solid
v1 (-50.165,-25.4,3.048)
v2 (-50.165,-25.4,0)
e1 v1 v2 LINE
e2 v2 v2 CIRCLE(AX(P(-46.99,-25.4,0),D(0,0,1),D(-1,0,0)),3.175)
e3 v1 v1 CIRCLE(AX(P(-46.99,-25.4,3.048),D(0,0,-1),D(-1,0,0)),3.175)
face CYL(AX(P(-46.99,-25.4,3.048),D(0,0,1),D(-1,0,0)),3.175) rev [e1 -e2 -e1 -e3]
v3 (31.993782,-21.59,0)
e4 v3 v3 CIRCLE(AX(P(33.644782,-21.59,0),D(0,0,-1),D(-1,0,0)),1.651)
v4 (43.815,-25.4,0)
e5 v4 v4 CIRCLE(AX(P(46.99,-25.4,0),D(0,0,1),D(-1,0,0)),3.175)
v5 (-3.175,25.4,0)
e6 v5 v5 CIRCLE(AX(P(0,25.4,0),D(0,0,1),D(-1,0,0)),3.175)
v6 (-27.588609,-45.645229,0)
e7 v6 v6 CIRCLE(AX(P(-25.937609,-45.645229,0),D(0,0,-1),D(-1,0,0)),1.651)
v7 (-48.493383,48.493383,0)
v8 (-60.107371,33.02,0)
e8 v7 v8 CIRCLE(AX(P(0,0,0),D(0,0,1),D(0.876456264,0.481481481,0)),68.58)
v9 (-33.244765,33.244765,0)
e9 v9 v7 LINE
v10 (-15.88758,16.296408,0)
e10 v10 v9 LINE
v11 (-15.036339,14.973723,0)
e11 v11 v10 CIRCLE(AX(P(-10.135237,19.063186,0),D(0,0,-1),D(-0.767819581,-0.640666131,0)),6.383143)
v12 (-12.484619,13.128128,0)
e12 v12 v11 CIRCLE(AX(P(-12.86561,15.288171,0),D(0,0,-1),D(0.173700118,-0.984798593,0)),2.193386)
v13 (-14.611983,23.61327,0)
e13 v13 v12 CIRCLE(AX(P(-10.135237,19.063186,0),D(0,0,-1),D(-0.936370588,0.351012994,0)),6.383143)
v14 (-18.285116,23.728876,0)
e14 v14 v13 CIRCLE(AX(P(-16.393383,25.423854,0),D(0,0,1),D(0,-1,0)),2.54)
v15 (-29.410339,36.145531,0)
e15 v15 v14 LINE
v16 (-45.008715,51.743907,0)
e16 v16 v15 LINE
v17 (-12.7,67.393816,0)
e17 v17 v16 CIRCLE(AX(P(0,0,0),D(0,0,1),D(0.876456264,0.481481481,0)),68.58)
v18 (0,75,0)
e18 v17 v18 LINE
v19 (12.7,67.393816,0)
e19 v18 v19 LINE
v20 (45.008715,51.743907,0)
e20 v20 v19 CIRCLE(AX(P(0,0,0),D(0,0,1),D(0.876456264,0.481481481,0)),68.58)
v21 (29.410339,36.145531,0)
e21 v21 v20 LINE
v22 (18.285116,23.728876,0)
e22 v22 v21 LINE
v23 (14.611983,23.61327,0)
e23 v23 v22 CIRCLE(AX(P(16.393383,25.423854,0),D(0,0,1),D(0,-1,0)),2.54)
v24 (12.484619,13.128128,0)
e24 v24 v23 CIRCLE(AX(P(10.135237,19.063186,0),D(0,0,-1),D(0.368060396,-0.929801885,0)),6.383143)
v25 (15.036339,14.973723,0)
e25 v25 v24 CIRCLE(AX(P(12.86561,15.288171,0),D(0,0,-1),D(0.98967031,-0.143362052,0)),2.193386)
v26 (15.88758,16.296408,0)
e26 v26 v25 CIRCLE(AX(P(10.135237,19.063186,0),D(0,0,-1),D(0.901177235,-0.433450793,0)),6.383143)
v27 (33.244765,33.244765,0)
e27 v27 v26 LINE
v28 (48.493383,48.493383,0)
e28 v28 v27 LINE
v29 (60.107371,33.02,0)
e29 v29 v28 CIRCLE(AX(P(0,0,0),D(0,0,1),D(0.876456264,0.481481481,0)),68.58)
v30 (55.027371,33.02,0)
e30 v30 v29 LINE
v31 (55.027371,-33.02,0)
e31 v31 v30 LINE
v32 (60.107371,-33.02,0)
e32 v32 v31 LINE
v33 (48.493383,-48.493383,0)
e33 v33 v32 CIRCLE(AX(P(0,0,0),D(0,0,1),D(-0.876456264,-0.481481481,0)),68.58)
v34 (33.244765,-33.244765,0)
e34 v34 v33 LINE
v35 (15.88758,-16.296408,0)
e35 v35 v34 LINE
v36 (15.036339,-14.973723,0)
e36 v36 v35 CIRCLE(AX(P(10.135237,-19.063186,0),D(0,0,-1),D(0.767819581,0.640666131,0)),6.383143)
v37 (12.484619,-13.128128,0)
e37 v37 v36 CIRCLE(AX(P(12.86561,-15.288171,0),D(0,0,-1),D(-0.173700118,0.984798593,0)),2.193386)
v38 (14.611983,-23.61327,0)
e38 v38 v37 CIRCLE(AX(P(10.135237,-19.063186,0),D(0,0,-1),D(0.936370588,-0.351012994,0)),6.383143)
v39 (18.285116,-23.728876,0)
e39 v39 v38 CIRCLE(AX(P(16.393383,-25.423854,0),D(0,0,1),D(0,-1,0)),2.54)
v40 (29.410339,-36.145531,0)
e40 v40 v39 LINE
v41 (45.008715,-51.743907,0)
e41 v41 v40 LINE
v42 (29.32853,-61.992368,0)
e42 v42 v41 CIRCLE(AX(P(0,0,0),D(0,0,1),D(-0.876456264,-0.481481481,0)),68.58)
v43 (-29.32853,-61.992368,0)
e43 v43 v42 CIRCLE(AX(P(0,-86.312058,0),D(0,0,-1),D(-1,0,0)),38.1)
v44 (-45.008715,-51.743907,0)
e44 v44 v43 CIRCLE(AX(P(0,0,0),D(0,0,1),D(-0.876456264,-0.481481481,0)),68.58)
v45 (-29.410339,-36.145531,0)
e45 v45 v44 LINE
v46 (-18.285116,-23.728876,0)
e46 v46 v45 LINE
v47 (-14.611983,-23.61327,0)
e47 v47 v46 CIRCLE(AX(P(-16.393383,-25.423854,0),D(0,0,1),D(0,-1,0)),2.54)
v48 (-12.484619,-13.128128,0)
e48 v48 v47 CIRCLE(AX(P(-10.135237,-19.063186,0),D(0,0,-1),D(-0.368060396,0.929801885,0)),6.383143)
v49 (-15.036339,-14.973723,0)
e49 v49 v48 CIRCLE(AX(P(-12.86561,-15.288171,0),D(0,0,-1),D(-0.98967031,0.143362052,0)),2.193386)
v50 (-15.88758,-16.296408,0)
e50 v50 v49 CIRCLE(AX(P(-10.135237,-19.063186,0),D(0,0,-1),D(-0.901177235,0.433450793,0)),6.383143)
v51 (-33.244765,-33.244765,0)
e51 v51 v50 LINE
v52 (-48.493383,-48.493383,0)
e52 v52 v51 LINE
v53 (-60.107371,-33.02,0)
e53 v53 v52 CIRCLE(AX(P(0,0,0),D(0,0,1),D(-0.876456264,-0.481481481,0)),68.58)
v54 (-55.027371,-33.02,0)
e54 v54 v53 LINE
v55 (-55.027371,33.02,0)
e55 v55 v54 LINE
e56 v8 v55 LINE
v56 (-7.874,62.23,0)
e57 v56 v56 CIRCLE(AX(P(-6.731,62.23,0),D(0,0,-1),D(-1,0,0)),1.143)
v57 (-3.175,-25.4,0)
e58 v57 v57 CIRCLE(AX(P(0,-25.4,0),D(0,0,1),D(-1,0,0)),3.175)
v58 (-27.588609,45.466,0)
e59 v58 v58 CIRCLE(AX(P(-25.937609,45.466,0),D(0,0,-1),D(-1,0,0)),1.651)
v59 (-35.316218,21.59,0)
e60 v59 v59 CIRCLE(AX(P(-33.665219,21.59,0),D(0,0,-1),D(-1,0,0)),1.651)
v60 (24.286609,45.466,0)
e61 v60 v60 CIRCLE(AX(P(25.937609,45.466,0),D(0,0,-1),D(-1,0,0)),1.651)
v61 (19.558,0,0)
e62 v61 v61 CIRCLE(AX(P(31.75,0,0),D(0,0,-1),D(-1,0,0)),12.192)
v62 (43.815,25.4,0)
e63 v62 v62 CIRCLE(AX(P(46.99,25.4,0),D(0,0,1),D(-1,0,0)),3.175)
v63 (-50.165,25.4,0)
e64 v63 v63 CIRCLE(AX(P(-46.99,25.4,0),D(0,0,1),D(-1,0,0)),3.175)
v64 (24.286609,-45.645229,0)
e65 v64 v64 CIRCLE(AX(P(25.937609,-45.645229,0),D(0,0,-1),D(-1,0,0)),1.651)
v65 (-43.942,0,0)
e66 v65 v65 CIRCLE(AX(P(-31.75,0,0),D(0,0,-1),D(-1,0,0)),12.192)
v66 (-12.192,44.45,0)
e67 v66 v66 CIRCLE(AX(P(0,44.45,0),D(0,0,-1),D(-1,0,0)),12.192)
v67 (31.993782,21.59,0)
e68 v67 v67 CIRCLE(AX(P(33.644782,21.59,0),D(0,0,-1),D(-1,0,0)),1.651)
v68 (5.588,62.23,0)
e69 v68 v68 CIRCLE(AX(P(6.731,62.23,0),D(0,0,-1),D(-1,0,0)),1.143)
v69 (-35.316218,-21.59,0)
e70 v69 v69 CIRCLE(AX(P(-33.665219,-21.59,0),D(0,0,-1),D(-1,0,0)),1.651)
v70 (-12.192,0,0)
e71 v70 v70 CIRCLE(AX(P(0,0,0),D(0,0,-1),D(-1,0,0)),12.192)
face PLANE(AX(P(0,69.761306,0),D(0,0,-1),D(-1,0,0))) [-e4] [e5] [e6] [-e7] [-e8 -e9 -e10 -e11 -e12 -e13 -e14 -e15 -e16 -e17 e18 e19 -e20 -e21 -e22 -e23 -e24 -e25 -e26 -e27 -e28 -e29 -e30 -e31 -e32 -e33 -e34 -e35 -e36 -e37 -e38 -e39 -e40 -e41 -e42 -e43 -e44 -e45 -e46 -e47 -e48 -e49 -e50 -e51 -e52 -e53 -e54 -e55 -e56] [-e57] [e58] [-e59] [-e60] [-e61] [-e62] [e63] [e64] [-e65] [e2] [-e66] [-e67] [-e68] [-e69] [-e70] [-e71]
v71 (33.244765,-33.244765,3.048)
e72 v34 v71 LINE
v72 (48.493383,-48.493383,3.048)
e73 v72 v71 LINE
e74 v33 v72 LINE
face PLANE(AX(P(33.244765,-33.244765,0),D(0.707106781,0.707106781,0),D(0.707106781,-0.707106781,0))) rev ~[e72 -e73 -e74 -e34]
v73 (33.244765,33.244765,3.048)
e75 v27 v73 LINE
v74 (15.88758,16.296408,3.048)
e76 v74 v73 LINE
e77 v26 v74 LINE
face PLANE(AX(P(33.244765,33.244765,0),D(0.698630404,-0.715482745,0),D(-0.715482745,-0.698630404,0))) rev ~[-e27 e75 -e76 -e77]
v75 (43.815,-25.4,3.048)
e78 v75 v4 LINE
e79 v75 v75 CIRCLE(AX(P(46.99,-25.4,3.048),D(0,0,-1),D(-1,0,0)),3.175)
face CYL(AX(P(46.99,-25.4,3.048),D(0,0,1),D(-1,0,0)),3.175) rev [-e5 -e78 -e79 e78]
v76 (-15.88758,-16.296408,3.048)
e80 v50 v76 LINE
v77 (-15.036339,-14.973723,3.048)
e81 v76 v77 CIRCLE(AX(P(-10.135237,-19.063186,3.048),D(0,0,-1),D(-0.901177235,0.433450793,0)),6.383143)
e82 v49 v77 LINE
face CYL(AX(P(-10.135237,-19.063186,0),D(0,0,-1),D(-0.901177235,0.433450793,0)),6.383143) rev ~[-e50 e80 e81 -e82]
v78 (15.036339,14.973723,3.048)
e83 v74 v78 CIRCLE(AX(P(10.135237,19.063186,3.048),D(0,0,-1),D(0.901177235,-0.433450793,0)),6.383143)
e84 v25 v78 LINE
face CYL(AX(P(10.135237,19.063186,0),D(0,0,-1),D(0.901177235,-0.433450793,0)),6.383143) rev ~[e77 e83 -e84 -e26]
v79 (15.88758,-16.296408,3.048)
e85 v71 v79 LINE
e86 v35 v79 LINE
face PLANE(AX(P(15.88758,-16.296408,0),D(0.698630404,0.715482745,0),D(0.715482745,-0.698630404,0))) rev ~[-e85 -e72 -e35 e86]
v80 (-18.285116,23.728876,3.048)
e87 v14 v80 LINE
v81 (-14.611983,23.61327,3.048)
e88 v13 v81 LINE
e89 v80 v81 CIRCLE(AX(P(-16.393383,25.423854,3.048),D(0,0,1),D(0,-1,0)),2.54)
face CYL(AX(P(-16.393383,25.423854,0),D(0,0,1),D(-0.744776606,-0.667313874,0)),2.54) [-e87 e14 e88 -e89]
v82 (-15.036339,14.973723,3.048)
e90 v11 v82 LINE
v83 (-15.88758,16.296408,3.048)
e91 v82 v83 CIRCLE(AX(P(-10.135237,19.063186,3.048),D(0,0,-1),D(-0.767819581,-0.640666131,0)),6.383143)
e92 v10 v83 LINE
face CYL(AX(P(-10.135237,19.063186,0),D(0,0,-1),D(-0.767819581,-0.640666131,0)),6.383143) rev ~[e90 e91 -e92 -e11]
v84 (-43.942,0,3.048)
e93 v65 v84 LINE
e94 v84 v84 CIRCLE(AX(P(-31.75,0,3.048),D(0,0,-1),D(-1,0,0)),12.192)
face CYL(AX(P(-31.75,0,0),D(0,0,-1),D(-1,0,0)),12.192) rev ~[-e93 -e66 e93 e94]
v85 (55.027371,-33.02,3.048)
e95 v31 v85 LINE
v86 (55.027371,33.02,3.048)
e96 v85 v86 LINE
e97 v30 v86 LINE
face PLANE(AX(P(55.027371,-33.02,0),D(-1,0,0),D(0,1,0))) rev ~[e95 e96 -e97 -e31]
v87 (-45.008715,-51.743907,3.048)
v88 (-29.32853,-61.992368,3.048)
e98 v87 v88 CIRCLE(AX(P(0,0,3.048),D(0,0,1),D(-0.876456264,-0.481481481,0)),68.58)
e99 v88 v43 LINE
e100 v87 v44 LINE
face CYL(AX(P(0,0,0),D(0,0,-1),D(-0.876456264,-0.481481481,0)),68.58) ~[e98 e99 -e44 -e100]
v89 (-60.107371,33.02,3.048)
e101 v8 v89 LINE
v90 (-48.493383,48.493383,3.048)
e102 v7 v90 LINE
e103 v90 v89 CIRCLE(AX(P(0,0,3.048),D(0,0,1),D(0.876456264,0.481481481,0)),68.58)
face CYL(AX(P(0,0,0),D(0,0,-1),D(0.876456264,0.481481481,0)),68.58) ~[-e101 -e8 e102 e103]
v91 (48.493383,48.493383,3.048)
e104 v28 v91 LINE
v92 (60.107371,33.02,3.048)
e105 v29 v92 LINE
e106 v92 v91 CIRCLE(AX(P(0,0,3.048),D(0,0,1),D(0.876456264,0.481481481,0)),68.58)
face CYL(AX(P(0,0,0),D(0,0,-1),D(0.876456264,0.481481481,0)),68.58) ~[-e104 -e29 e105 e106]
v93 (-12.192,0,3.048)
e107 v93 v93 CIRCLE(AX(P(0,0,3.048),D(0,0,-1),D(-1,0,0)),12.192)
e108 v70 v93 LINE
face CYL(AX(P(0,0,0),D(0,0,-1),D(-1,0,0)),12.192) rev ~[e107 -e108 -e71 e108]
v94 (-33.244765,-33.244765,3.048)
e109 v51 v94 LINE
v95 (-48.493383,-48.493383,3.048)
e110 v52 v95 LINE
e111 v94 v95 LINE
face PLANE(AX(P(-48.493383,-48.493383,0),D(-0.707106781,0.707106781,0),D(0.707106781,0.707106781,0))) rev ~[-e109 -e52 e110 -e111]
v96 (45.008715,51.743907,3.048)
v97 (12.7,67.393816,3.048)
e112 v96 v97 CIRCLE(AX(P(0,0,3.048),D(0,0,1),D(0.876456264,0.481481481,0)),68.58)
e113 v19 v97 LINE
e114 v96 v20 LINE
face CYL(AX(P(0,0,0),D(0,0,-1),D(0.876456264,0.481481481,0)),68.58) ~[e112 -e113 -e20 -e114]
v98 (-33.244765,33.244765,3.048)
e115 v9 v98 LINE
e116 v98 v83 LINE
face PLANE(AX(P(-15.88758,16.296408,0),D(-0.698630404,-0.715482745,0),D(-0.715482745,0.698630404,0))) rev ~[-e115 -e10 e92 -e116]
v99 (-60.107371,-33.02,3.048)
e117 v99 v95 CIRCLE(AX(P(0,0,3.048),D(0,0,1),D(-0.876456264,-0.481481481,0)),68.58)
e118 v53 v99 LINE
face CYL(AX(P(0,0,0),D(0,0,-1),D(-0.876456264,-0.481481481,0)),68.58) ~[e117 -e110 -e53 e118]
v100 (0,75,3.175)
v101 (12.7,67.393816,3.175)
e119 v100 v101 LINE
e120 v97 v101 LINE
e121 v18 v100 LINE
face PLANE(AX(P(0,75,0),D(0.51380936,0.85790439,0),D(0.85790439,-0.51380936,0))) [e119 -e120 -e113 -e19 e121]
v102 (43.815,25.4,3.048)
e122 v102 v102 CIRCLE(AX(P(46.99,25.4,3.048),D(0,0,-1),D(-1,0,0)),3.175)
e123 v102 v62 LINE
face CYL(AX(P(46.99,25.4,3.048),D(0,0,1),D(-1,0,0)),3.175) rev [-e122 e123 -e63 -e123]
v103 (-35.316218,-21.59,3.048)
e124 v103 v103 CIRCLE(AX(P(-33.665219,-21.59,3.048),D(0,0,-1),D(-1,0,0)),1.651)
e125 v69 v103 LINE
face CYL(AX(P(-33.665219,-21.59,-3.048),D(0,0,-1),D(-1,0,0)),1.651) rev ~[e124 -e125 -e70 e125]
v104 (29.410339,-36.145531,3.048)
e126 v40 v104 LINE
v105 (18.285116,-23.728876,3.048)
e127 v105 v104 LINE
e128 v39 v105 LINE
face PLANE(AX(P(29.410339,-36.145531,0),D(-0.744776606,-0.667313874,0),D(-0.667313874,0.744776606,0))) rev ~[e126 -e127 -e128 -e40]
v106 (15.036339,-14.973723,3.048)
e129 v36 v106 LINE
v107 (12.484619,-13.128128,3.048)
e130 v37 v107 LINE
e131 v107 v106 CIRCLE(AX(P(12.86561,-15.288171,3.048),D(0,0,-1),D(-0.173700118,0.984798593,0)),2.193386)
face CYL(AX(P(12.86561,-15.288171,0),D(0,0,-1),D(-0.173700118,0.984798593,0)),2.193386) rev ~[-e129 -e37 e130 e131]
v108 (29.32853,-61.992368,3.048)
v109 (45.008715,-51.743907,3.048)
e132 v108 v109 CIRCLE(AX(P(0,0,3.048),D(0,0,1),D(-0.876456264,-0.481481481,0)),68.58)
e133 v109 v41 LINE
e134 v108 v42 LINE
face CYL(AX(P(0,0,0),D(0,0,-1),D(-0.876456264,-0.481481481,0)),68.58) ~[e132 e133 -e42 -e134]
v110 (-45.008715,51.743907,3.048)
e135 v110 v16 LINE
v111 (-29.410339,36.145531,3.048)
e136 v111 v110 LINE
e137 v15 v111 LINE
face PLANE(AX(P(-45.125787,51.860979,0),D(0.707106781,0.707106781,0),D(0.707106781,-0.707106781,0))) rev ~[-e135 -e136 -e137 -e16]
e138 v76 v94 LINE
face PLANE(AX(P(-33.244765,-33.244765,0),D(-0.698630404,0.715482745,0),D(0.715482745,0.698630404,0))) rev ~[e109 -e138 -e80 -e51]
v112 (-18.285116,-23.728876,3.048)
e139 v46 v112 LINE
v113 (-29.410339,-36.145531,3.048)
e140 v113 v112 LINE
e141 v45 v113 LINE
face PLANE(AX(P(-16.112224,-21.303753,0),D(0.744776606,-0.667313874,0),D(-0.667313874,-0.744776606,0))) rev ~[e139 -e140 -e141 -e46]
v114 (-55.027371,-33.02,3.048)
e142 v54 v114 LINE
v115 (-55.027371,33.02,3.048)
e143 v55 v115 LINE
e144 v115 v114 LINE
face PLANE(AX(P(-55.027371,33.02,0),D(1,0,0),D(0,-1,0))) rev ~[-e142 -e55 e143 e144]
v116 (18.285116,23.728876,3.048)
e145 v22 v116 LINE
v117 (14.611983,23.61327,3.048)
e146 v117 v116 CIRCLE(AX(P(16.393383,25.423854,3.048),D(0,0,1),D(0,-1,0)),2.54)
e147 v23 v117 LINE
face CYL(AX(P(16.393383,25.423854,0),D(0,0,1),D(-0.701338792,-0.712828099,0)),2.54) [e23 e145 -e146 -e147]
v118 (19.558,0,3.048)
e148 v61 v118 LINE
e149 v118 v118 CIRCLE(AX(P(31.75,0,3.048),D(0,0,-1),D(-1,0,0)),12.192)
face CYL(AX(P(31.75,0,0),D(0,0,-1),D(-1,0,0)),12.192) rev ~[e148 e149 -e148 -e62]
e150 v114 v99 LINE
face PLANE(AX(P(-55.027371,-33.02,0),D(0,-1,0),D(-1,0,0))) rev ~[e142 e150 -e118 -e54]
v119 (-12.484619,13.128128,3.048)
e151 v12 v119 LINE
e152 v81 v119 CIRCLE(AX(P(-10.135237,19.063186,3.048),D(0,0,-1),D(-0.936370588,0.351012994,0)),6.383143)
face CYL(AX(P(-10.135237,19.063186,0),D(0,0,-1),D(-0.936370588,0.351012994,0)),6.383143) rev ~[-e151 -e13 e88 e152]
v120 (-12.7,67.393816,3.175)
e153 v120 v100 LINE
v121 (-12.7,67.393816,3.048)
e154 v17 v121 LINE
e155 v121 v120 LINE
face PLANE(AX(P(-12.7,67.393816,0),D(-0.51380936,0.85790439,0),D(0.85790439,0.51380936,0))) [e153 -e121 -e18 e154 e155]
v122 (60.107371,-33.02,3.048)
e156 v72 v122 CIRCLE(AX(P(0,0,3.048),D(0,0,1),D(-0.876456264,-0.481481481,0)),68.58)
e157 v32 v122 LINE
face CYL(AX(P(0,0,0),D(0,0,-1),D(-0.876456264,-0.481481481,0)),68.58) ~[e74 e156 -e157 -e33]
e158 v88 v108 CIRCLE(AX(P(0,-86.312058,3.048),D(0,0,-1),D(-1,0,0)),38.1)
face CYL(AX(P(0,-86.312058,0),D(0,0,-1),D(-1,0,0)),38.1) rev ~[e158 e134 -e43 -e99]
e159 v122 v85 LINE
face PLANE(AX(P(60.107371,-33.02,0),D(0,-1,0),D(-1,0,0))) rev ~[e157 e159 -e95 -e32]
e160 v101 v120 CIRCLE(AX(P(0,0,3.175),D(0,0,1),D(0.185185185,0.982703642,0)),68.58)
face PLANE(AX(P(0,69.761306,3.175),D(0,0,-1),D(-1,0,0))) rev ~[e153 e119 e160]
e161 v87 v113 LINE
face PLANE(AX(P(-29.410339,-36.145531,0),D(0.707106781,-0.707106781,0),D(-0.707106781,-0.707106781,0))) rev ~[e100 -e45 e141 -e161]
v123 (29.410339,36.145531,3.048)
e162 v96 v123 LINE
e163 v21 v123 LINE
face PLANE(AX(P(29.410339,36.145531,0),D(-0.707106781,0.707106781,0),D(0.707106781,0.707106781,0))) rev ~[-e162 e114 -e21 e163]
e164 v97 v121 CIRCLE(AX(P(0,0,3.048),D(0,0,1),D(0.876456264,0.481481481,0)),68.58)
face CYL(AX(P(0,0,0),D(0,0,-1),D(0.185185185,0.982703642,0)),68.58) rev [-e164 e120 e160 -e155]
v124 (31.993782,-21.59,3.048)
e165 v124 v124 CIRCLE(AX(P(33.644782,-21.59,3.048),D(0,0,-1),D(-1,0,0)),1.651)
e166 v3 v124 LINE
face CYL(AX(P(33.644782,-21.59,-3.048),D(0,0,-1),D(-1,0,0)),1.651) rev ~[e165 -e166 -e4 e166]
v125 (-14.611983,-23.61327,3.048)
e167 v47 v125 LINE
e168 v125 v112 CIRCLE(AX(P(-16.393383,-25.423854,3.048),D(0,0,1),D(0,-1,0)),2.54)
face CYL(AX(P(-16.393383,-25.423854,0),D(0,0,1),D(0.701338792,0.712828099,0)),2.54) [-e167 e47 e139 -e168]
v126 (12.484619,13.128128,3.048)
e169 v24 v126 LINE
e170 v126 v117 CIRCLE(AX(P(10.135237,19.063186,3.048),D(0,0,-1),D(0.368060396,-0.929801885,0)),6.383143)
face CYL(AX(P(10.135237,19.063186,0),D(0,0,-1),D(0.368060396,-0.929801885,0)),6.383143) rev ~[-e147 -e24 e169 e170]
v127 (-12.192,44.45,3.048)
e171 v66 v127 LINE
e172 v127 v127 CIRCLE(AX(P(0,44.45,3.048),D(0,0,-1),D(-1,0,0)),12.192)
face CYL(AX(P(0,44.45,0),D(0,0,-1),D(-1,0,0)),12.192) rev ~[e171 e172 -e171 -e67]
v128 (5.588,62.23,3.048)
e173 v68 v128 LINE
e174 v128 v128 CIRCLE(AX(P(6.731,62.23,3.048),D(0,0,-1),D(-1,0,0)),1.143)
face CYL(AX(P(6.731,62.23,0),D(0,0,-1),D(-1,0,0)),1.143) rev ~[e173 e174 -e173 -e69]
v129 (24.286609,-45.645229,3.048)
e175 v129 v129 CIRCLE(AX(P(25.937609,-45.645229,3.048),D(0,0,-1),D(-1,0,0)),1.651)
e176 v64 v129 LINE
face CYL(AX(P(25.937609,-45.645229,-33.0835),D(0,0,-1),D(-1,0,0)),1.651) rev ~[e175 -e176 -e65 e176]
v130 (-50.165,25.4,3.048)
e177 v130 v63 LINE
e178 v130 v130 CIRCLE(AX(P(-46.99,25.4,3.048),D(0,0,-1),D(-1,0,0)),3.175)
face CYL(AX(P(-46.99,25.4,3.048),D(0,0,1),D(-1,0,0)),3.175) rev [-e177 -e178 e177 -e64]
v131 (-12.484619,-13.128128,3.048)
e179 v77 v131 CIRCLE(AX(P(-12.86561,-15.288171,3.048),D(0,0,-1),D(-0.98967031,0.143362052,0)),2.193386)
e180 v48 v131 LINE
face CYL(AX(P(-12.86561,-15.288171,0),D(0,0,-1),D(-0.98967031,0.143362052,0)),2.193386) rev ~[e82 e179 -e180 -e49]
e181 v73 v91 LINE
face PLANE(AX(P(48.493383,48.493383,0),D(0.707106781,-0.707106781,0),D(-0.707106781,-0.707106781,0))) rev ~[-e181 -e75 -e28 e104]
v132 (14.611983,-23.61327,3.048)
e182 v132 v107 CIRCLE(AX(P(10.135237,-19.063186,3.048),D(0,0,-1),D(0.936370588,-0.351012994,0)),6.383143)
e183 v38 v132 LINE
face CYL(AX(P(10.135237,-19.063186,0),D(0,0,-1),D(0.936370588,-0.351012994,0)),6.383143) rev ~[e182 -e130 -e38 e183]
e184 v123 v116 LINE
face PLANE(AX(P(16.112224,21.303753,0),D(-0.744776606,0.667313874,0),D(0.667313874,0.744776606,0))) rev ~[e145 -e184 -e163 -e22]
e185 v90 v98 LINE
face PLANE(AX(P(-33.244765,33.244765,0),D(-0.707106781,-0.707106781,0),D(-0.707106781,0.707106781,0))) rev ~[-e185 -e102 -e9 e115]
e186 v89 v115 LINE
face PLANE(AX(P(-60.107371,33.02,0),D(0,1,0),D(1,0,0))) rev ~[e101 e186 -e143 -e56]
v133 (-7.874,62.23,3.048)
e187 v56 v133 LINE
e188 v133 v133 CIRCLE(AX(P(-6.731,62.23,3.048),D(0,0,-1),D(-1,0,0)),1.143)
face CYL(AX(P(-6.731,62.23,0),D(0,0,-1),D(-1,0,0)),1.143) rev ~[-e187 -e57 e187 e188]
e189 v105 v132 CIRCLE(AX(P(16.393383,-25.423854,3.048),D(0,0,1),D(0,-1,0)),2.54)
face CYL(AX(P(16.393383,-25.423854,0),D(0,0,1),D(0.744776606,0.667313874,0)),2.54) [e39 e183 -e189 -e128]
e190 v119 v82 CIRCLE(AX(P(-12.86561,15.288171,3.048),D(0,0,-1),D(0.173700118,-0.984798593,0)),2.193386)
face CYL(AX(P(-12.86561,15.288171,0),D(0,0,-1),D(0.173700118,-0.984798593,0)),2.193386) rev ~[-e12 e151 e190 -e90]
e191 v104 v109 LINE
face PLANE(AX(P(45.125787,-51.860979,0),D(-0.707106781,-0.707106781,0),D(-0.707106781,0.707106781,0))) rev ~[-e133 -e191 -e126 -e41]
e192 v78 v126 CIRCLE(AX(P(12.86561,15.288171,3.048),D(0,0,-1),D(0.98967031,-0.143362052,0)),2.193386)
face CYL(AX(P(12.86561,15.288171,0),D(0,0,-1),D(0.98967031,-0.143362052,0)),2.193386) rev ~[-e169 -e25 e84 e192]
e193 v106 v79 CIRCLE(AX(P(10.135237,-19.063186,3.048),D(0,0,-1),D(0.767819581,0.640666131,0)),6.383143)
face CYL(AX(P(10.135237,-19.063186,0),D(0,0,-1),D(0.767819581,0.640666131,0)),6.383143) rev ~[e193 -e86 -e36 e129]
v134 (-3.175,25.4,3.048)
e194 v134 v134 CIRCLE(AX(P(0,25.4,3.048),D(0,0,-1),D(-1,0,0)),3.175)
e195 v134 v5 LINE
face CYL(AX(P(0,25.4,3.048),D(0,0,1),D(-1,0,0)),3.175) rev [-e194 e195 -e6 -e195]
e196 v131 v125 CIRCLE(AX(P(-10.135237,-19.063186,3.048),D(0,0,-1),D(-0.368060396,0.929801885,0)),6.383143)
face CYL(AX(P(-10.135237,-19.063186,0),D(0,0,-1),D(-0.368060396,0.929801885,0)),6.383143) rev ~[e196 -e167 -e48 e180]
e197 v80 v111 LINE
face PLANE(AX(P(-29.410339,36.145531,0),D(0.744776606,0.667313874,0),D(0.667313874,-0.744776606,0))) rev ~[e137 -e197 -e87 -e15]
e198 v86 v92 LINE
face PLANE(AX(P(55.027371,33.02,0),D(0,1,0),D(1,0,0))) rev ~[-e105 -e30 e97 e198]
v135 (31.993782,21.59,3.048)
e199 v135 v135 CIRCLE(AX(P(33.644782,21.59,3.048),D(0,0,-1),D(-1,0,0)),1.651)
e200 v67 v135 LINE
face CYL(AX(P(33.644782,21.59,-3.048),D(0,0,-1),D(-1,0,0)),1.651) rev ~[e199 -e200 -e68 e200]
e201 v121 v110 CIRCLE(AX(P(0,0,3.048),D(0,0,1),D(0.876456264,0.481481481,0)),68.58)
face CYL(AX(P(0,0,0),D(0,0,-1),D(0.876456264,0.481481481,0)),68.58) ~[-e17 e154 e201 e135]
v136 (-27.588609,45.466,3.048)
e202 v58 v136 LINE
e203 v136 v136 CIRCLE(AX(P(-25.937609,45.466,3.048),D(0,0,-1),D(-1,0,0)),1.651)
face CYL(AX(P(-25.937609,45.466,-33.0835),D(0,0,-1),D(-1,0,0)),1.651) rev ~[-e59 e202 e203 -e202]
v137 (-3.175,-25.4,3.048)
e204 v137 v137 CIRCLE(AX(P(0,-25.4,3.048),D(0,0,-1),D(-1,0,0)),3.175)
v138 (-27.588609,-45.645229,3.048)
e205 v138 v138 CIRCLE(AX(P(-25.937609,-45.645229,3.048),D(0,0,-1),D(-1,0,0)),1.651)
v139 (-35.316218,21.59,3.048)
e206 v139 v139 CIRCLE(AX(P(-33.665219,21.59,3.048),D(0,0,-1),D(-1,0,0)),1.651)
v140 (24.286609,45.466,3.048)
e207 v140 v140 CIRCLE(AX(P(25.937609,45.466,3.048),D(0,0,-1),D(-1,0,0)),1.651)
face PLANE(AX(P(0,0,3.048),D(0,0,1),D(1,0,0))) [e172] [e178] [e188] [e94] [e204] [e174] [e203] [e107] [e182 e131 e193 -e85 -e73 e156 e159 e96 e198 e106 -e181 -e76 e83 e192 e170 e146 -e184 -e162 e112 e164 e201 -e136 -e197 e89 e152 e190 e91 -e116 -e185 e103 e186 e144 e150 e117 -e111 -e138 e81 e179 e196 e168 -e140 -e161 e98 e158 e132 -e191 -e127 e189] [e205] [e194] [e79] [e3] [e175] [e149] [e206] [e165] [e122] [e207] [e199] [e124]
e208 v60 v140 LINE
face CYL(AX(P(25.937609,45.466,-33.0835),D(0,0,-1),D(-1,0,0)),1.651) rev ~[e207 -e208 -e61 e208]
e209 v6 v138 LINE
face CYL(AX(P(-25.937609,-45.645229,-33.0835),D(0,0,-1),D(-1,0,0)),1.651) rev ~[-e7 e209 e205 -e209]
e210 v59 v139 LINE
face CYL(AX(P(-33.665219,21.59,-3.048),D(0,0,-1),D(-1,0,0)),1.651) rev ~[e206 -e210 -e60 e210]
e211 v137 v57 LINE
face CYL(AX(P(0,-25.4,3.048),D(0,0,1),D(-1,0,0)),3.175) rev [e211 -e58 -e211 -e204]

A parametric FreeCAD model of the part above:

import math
import FreeCAD as App
import Part
import Sketcher
Q = App.Units.Quantity


def edges_at(feature, points):
    """Names of the edges that pass closest to the given points."""
    edges = feature.Shape.Edges
    near = lambda p: min(range(len(edges)), key=lambda i: edges[i].distToShape(Part.Vertex(*p))[0])
    return sorted({f"Edge{near(p) + 1}" for p in points})

doc = App.newDocument("Part")
body = doc.addObject("PartDesign::Body", "Body")

# Sketch on XY plane
sketch1 = body.newObject("Sketcher::SketchObject", "Sketch")
sketch1.AttachmentSupport = (doc.getObject("XY_Plane"), [""])
sketch1.MapMode = "FlatFace"
sketch1.addGeometry([
    Part.LineSegment(App.Vector(-60.107371, 33.02, 0), App.Vector(-55.027371, 33.02, 0)),  # 0
    Part.LineSegment(App.Vector(-55.027371, 33.02, 0), App.Vector(-55.027371, -33.02, 0)),  # 1
    Part.LineSegment(App.Vector(-55.027371, -33.02, 0), App.Vector(-60.107371, -33.02, 0)),  # 2
    Part.ArcOfCircle(Part.Circle(App.Vector(0, 0, 0), App.Vector(0, 0, 1), 68.58), math.radians(-151.217795), math.radians(-28.782205)),  # 3
    Part.LineSegment(App.Vector(60.107371, -33.02, 0), App.Vector(55.027371, -33.02, 0)),  # 4
    Part.LineSegment(App.Vector(55.027371, -33.02, 0), App.Vector(55.027371, 33.02, 0)),  # 5
    Part.LineSegment(App.Vector(55.027371, 33.02, 0), App.Vector(60.107371, 33.02, 0)),  # 6
    Part.ArcOfCircle(Part.Circle(App.Vector(0, 0, 0), App.Vector(0, 0, 1), 68.58), math.radians(28.782205), math.radians(151.217795)),  # 7
], False)
sketch1.addConstraint([
    Sketcher.Constraint("Coincident", 0, 2, 1, 1),
    Sketcher.Constraint("Coincident", 1, 2, 2, 1),
    Sketcher.Constraint("Coincident", 2, 2, 3, 1),
    Sketcher.Constraint("Coincident", 3, 2, 4, 1),
    Sketcher.Constraint("Coincident", 4, 2, 5, 1),
    Sketcher.Constraint("Coincident", 5, 2, 6, 1),
    Sketcher.Constraint("Coincident", 6, 2, 7, 1),
    Sketcher.Constraint("Coincident", 7, 2, 0, 1),
    Sketcher.Constraint("Horizontal", 0),
    Sketcher.Constraint("Vertical", 1),
    Sketcher.Constraint("Horizontal", 2),
    Sketcher.Constraint("Horizontal", 4),
    Sketcher.Constraint("Vertical", 5),
    Sketcher.Constraint("Horizontal", 6),
    Sketcher.Constraint("Coincident", 3, 3, -1, 1),
    Sketcher.Constraint("Coincident", 7, 3, -1, 1),
    Sketcher.Constraint("Equal", 3, 7),
    Sketcher.Constraint("Symmetric", 0, 2, 4, 2, -1, 1),
    Sketcher.Constraint("Horizontal", 2, 2, 3, 2),
    Sketcher.Constraint("Horizontal", 0, 2, 5, 2),
    Sketcher.Constraint("Radius", 3, Q("2.7 in")),
    Sketcher.Constraint("DistanceX", 0, 1, 0, 2, Q("0.2 in")),
    Sketcher.Constraint("DistanceY", 1, 2, 1, 1, Q("2.6 in")),
])
pad1 = body.newObject("PartDesign::Pad", "Pad")
pad1.Profile = sketch1
pad1.Length = Q("0.12 in")

# Sketch on XY plane
sketch2 = body.newObject("Sketcher::SketchObject", "Sketch001")
sketch2.AttachmentSupport = (doc.getObject("XY_Plane"), [""])
sketch2.MapMode = "FlatFace"
sketch2.addGeometry(Part.Circle(App.Vector(0, -86.312058, 0), App.Vector(0, 0, 1), 38.1), False)
sketch2.addConstraint([
    Sketcher.Constraint("PointOnObject", 0, 3, -2),
    Sketcher.Constraint("Diameter", 0, Q("3 in")),
    Sketcher.Constraint("DistanceY", 0, 3, -1, 1, 86.312058),
])
pocket1 = body.newObject("PartDesign::Pocket", "Pocket")
pocket1.Profile = sketch2
pocket1.Type = "ThroughAll"
pocket1.Reversed = True

# Sketch on XY plane
sketch3 = body.newObject("Sketcher::SketchObject", "Sketch002")
sketch3.AttachmentSupport = (doc.getObject("XY_Plane"), [""])
sketch3.MapMode = "FlatFace"
sketch3.addGeometry([
    Part.LineSegment(App.Vector(-12.7, 67.393816, 0), App.Vector(0, 75, 0)),
    Part.LineSegment(App.Vector(0, 75, 0), App.Vector(12.7, 67.393816, 0)),
    Part.ArcOfCircle(Part.Circle(App.Vector(0, 0, 0), App.Vector(0, 0, 1), 68.58), math.radians(79.328071), math.radians(100.671929)),
], False)
sketch3.addConstraint([
    Sketcher.Constraint("Coincident", 0, 2, 1, 1),
    Sketcher.Constraint("Coincident", 1, 2, 2, 1),
    Sketcher.Constraint("Coincident", 2, 2, 0, 1),
    Sketcher.Constraint("Coincident", 2, 3, -1, 1),
    Sketcher.Constraint("PointOnObject", 0, 2, -2),
    Sketcher.Constraint("Horizontal", 1, 2, 2, 2),
    Sketcher.Constraint("Radius", 2, Q("2.7 in")),
    Sketcher.Constraint("DistanceX", 2, 2, 1, 2, Q("1 in")),
    Sketcher.Constraint("DistanceY", -1, 1, 0, 2, 75.0),
])
pad2 = body.newObject("PartDesign::Pad", "Pad001")
pad2.Profile = sketch3
pad2.Length = Q("0.125 in")

# Sketch on XY plane
sketch4 = body.newObject("Sketcher::SketchObject", "Sketch003")
sketch4.AttachmentSupport = (doc.getObject("XY_Plane"), [""])
sketch4.MapMode = "FlatFace"
sketch4.addGeometry([
    Part.Circle(App.Vector(-6.731, 62.23, 0), App.Vector(0, 0, 1), 1.143),
    Part.Circle(App.Vector(6.731, 62.23, 0), App.Vector(0, 0, 1), 1.143),
], False)
sketch4.addConstraint([
    Sketcher.Constraint("Equal", 0, 1),
    Sketcher.Constraint("Symmetric", 0, 3, 1, 3, -2),
    Sketcher.Constraint("Diameter", 0, Q("0.09 in")),
    Sketcher.Constraint("DistanceY", -1, 1, 0, 3, Q("2.45 in")),
    Sketcher.Constraint("DistanceX", 0, 3, 1, 3, Q("0.53 in")),
])
pocket2 = body.newObject("PartDesign::Pocket", "Pocket001")
pocket2.Profile = sketch4
pocket2.Type = "ThroughAll"
pocket2.Reversed = True

# Sketch on XY plane
sketch5 = body.newObject("Sketcher::SketchObject", "Sketch004")
sketch5.AttachmentSupport = (doc.getObject("XY_Plane"), [""])
sketch5.MapMode = "FlatFace"
sketch5.AttachmentOffset = App.Placement(App.Vector(0, 0, -0.12 * 25.4), App.Rotation())
sketch5.addGeometry([
    Part.Circle(App.Vector(-33.665219, 21.59, 0), App.Vector(0, 0, 1), 1.651),
    Part.Circle(App.Vector(-33.665219, -21.59, 0), App.Vector(0, 0, 1), 1.651),
    Part.Circle(App.Vector(33.644782, -21.59, 0), App.Vector(0, 0, 1), 1.651),
    Part.Circle(App.Vector(33.644782, 21.59, 0), App.Vector(0, 0, 1), 1.651),
], False)
sketch5.addConstraint([
    Sketcher.Constraint("Equal", 0, 1),
    Sketcher.Constraint("Equal", 1, 2),
    Sketcher.Constraint("Equal", 2, 3),
    Sketcher.Constraint("Symmetric", 0, 3, 1, 3, -1),
    Sketcher.Constraint("Symmetric", 2, 3, 3, 3, -1),
    Sketcher.Constraint("Horizontal", 1, 3, 2, 3),
    Sketcher.Constraint("Diameter", 0, Q("0.13 in")),
    Sketcher.Constraint("DistanceY", 1, 3, 0, 3, Q("1.7 in")),
    Sketcher.Constraint("DistanceX", 1, 3, 2, 3, Q("2.65 in")),
    Sketcher.Constraint("DistanceX", 0, 3, -1, 1, 33.665219),
])
pocket3 = body.newObject("PartDesign::Pocket", "Pocket002")
pocket3.Profile = sketch5
pocket3.Length = Q("2.98 in")
pocket3.Reversed = True

# Sketch on XY plane
sketch6 = body.newObject("Sketcher::SketchObject", "Sketch005")
sketch6.AttachmentSupport = (doc.getObject("XY_Plane"), [""])
sketch6.MapMode = "FlatFace"
sketch6.AttachmentOffset = App.Placement(App.Vector(0, 0, -1.3025 * 25.4), App.Rotation())
sketch6.addGeometry([
    Part.Circle(App.Vector(25.937609, -45.645229, 0), App.Vector(0, 0, 1), 1.651),
    Part.Circle(App.Vector(-25.937609, -45.645229, 0), App.Vector(0, 0, 1), 1.651),
    Part.Circle(App.Vector(25.937609, 45.466, 0), App.Vector(0, 0, 1), 1.651),
    Part.Circle(App.Vector(-25.937609, 45.466, 0), App.Vector(0, 0, 1), 1.651),
], False)
sketch6.addConstraint([
    Sketcher.Constraint("Equal", 0, 1),
    Sketcher.Constraint("Equal", 1, 2),
    Sketcher.Constraint("Equal", 2, 3),
    Sketcher.Constraint("Symmetric", 0, 3, 1, 3, -2),
    Sketcher.Constraint("Symmetric", 2, 3, 3, 3, -2),
    Sketcher.Constraint("Vertical", 0, 3, 2, 3),
    Sketcher.Constraint("Diameter", 0, Q("0.13 in")),
    Sketcher.Constraint("DistanceY", -1, 1, 2, 3, Q("1.79 in")),
    Sketcher.Constraint("DistanceX", -1, 1, 0, 3, 25.937609),
    Sketcher.Constraint("DistanceY", 0, 3, -1, 1, 45.645229),
])
pocket4 = body.newObject("PartDesign::Pocket", "Pocket003")
pocket4.Profile = sketch6
pocket4.Length = Q("3.85 in")
pocket4.Reversed = True

# Sketch on XY plane
sketch7 = body.newObject("Sketcher::SketchObject", "Sketch006")
sketch7.AttachmentSupport = (doc.getObject("XY_Plane"), [""])
sketch7.MapMode = "FlatFace"
sketch7.addGeometry([
    Part.Circle(App.Vector(-31.75, 0, 0), App.Vector(0, 0, 1), 12.192),
    Part.Circle(App.Vector(31.75, 0, 0), App.Vector(0, 0, 1), 12.192),
], False)
sketch7.addConstraint([
    Sketcher.Constraint("Equal", 0, 1),
    Sketcher.Constraint("Symmetric", 0, 3, 1, 3, -1, 1),
    Sketcher.Constraint("PointOnObject", 0, 3, -1),
    Sketcher.Constraint("Diameter", 0, Q("0.96 in")),
    Sketcher.Constraint("DistanceX", 0, 3, 1, 3, Q("2.5 in")),
])
pocket5 = body.newObject("PartDesign::Pocket", "Pocket004")
pocket5.Profile = sketch7
pocket5.Length = Q("1.4 in")
pocket5.Reversed = True

# Sketch on XY plane
sketch8 = body.newObject("Sketcher::SketchObject", "Sketch007")
sketch8.AttachmentSupport = (doc.getObject("XY_Plane"), [""])
sketch8.MapMode = "FlatFace"
sketch8.AttachmentOffset = App.Placement(App.Vector(0, 0, 0.12 * 25.4), App.Rotation())
sketch8.addGeometry([
    Part.Circle(App.Vector(46.99, 25.4, 0), App.Vector(0, 0, 1), 3.175),  # 0
    Part.Circle(App.Vector(-46.99, 25.4, 0), App.Vector(0, 0, 1), 3.175),  # 1
    Part.Circle(App.Vector(0, 25.4, 0), App.Vector(0, 0, 1), 3.175),  # 2
    Part.Circle(App.Vector(-46.99, -25.4, 0), App.Vector(0, 0, 1), 3.175),  # 3
    Part.Circle(App.Vector(0, -25.4, 0), App.Vector(0, 0, 1), 3.175),  # 4
    Part.Circle(App.Vector(46.99, -25.4, 0), App.Vector(0, 0, 1), 3.175),  # 5
], False)
sketch8.addConstraint([
    Sketcher.Constraint("Equal", 0, 1),
    Sketcher.Constraint("Equal", 1, 2),
    Sketcher.Constraint("Equal", 2, 3),
    Sketcher.Constraint("Equal", 3, 4),
    Sketcher.Constraint("Equal", 4, 5),
    Sketcher.Constraint("Symmetric", 0, 3, 3, 3, -1, 1),
    Sketcher.Constraint("Symmetric", 2, 3, 4, 3, -1, 1),
    Sketcher.Constraint("Symmetric", 1, 3, 5, 3, -1, 1),
    Sketcher.Constraint("Symmetric", 0, 3, 1, 3, -2),
    Sketcher.Constraint("PointOnObject", 2, 3, -2),
    Sketcher.Constraint("Horizontal", 1, 3, 2, 3),
    Sketcher.Constraint("Diameter", 0, Q("0.25 in")),
    Sketcher.Constraint("DistanceY", -1, 1, 0, 3, Q("1 in")),
    Sketcher.Constraint("DistanceX", 1, 3, 0, 3, Q("3.7 in")),
])
pocket6 = body.newObject("PartDesign::Pocket", "Pocket005")
pocket6.Profile = sketch8
pocket6.Type = "ThroughAll"
pocket6.Midplane = True

# Sketch on XY plane
sketch9 = body.newObject("Sketcher::SketchObject", "Sketch008")
sketch9.AttachmentSupport = (doc.getObject("XY_Plane"), [""])
sketch9.MapMode = "FlatFace"
sketch9.addGeometry([
    Part.LineSegment(App.Vector(-45.125787, -51.860979, 0), App.Vector(-48.493383, -48.493383, 0)),  # 0
    Part.LineSegment(App.Vector(-48.493383, -48.493383, 0), App.Vector(-33.244765, -33.244765, 0)),  # 1
    Part.LineSegment(App.Vector(-33.244765, -33.244765, 0), App.Vector(-15.88758, -16.296408, 0)),  # 2
    Part.ArcOfCircle(Part.Circle(App.Vector(-10.135237, -19.063186, 0), App.Vector(0, 0, 1), 6.383143), math.radians(140.158491), math.radians(154.313244)),  # 3
    Part.ArcOfCircle(Part.Circle(App.Vector(-12.86561, -15.288171, 0), App.Vector(0, 0, 1), 2.193386), math.radians(79.996978), math.radians(171.757559)),  # 4
    Part.ArcOfCircle(Part.Circle(App.Vector(-10.135237, -19.063186, 0), App.Vector(0, 0, 1), 6.383143), math.radians(-159.450713), math.radians(111.596047)),  # 5
    Part.LineSegment(App.Vector(-16.112224, -21.303753, 0), App.Vector(-29.410339, -36.145531, 0)),  # 6
    Part.LineSegment(App.Vector(-29.410339, -36.145531, 0), App.Vector(-45.125787, -51.860979, 0)),  # 7
    Part.ArcOfCircle(Part.Circle(App.Vector(-10.135237, 19.063186, 0), App.Vector(0, 0, 1), 6.383143), math.radians(-154.313244), math.radians(-140.158491)),  # 8
    Part.LineSegment(App.Vector(-15.88758, 16.296408, 0), App.Vector(-33.244765, 33.244765, 0)),  # 9
    Part.LineSegment(App.Vector(-33.244765, 33.244765, 0), App.Vector(-48.493383, 48.493383, 0)),  # 10
    Part.LineSegment(App.Vector(-48.493383, 48.493383, 0), App.Vector(-45.125787, 51.860979, 0)),  # 11
    Part.LineSegment(App.Vector(-45.125787, 51.860979, 0), App.Vector(-29.410339, 36.145531, 0)),  # 12
    Part.LineSegment(App.Vector(-29.410339, 36.145531, 0), App.Vector(-16.112224, 21.303753, 0)),  # 13
    Part.ArcOfCircle(Part.Circle(App.Vector(-10.135237, 19.063186, 0), App.Vector(0, 0, 1), 6.383143), math.radians(-111.596047), math.radians(159.450713)),  # 14
    Part.ArcOfCircle(Part.Circle(App.Vector(-12.86561, 15.288171, 0), App.Vector(0, 0, 1), 2.193386), math.radians(-171.757559), math.radians(-79.996978)),  # 15
    Part.ArcOfCircle(Part.Circle(App.Vector(10.135237, 19.063186, 0), App.Vector(0, 0, 1), 6.383143), math.radians(20.549287), math.radians(291.596047)),  # 16
    Part.LineSegment(App.Vector(16.112224, 21.303753, 0), App.Vector(29.410339, 36.145531, 0)),  # 17
    Part.LineSegment(App.Vector(29.410339, 36.145531, 0), App.Vector(45.125787, 51.860979, 0)),  # 18
    Part.LineSegment(App.Vector(45.125787, 51.860979, 0), App.Vector(48.493383, 48.493383, 0)),  # 19
    Part.LineSegment(App.Vector(48.493383, 48.493383, 0), App.Vector(33.244765, 33.244765, 0)),  # 20
    Part.LineSegment(App.Vector(33.244765, 33.244765, 0), App.Vector(15.88758, 16.296408, 0)),  # 21
    Part.ArcOfCircle(Part.Circle(App.Vector(10.135237, 19.063186, 0), App.Vector(0, 0, 1), 6.383143), math.radians(-39.841509), math.radians(-25.686756)),  # 22
    Part.ArcOfCircle(Part.Circle(App.Vector(12.86561, 15.288171, 0), App.Vector(0, 0, 1), 2.193386), math.radians(-100.003022), math.radians(-8.242441)),  # 23
    Part.LineSegment(App.Vector(45.125787, -51.860979, 0), App.Vector(29.410339, -36.145531, 0)),  # 24
    Part.LineSegment(App.Vector(29.410339, -36.145531, 0), App.Vector(16.112224, -21.303753, 0)),  # 25
    Part.ArcOfCircle(Part.Circle(App.Vector(10.135237, -19.063186, 0), App.Vector(0, 0, 1), 6.383143), math.radians(68.403953), math.radians(339.450713)),  # 26
    Part.ArcOfCircle(Part.Circle(App.Vector(12.86561, -15.288171, 0), App.Vector(0, 0, 1), 2.193386), math.radians(8.242441), math.radians(100.003022)),  # 27
    Part.ArcOfCircle(Part.Circle(App.Vector(10.135237, -19.063186, 0), App.Vector(0, 0, 1), 6.383143), math.radians(25.686756), math.radians(39.841509)),  # 28
    Part.LineSegment(App.Vector(15.88758, -16.296408, 0), App.Vector(33.244765, -33.244765, 0)),  # 29
    Part.LineSegment(App.Vector(33.244765, -33.244765, 0), App.Vector(48.493383, -48.493383, 0)),  # 30
    Part.LineSegment(App.Vector(48.493383, -48.493383, 0), App.Vector(45.125787, -51.860979, 0)),  # 31
    Part.Circle(App.Vector(0, 0, 0), App.Vector(0, 0, 1), 12.192),  # 32
    Part.Circle(App.Vector(0, 44.45, 0), App.Vector(0, 0, 1), 12.192),  # 33
], False)
sketch9.addConstraint([
    Sketcher.Constraint("Coincident", 0, 2, 1, 1),
    Sketcher.Constraint("Coincident", 1, 2, 2, 1),
    Sketcher.Constraint("Coincident", 2, 2, 3, 2),
    Sketcher.Constraint("Coincident", 3, 1, 4, 2),
    Sketcher.Constraint("Coincident", 4, 1, 5, 2),
    Sketcher.Constraint("Coincident", 5, 1, 6, 1),
    Sketcher.Constraint("Coincident", 6, 2, 7, 1),
    Sketcher.Constraint("Coincident", 7, 2, 0, 1),
    Sketcher.Constraint("Coincident", 8, 1, 9, 1),
    Sketcher.Constraint("Coincident", 9, 2, 10, 1),
    Sketcher.Constraint("Coincident", 10, 2, 11, 1),
    Sketcher.Constraint("Coincident", 11, 2, 12, 1),
    Sketcher.Constraint("Coincident", 12, 2, 13, 1),
    Sketcher.Constraint("Coincident", 13, 2, 14, 2),
    Sketcher.Constraint("Coincident", 14, 1, 15, 2),
    Sketcher.Constraint("Coincident", 15, 1, 8, 2),
    Sketcher.Constraint("Coincident", 16, 1, 17, 1),
    Sketcher.Constraint("Coincident", 17, 2, 18, 1),
    Sketcher.Constraint("Coincident", 18, 2, 19, 1),
    Sketcher.Constraint("Coincident", 19, 2, 20, 1),
    Sketcher.Constraint("Coincident", 20, 2, 21, 1),
    Sketcher.Constraint("Coincident", 21, 2, 22, 2),
    Sketcher.Constraint("Coincident", 22, 1, 23, 2),
    Sketcher.Constraint("Coincident", 23, 1, 16, 2),
    Sketcher.Constraint("Coincident", 24, 2, 25, 1),
    Sketcher.Constraint("Coincident", 25, 2, 26, 2),
    Sketcher.Constraint("Coincident", 26, 1, 27, 2),
    Sketcher.Constraint("Coincident", 27, 1, 28, 2),
    Sketcher.Constraint("Coincident", 28, 1, 29, 1),
    Sketcher.Constraint("Coincident", 29, 2, 30, 1),
    Sketcher.Constraint("Coincident", 30, 2, 31, 1),
    Sketcher.Constraint("Coincident", 31, 2, 24, 1),
    Sketcher.Constraint("Coincident", 32, 3, -1, 1),
    Sketcher.Constraint("Coincident", 5, 3, 3, 3),
    Sketcher.Constraint("Coincident", 14, 3, 8, 3),
    Sketcher.Constraint("Coincident", 22, 3, 16, 3),
    Sketcher.Constraint("Coincident", 28, 3, 26, 3),
    Sketcher.Constraint("Equal", 3, 5),
    Sketcher.Constraint("Equal", 5, 8),
    Sketcher.Constraint("Equal", 8, 14),
    Sketcher.Constraint("Equal", 4, 15),
    Sketcher.Constraint("Equal", 14, 16),
    Sketcher.Constraint("Equal", 16, 22),
    Sketcher.Constraint("Equal", 15, 23),
    Sketcher.Constraint("Equal", 22, 26),
    Sketcher.Constraint("Equal", 23, 27),
    Sketcher.Constraint("Equal", 26, 28),
    Sketcher.Constraint("Equal", 32, 33),
    Sketcher.Constraint("Symmetric", 3, 3, 16, 3, -1, 1),
    Sketcher.Constraint("Symmetric", 4, 3, 23, 3, -1, 1),
    Sketcher.Constraint("Symmetric", 8, 3, 26, 3, -1, 1),
    Sketcher.Constraint("Symmetric", 15, 3, 27, 3, -1, 1),
    Sketcher.Constraint("Symmetric", 6, 2, 17, 2, -1, 1),
    Sketcher.Constraint("Symmetric", 7, 2, 18, 2, -1, 1),
    Sketcher.Constraint("Symmetric", 0, 2, 19, 2, -1, 1),
    Sketcher.Constraint("Symmetric", 1, 2, 20, 2, -1, 1),
    Sketcher.Constraint("Symmetric", 12, 2, 24, 2, -1, 1),
    Sketcher.Constraint("Symmetric", 9, 2, 29, 2, -1, 1),
    Sketcher.Constraint("Symmetric", 10, 2, 30, 2, -1, 1),
    Sketcher.Constraint("Symmetric", 11, 2, 31, 2, -1, 1),
    Sketcher.Constraint("Symmetric", 8, 3, 16, 3, -2),
    Sketcher.Constraint("Symmetric", 15, 3, 23, 3, -2),
    Sketcher.Constraint("Symmetric", 12, 2, 17, 2, -2),
    Sketcher.Constraint("Symmetric", 11, 2, 18, 2, -2),
    Sketcher.Constraint("Symmetric", 10, 2, 19, 2, -2),
    Sketcher.Constraint("Symmetric", 9, 2, 20, 2, -2),
    Sketcher.Constraint("PointOnObject", 33, 3, -2),
    Sketcher.Constraint("Perpendicular", 0, 1),
    Sketcher.Constraint("Parallel", 1, 7),
    Sketcher.Constraint("Perpendicular", 7, 10),
    Sketcher.Constraint("Parallel", 6, 17),
    Sketcher.Constraint("Parallel", 2, 21),
    Sketcher.Constraint("Parallel", 13, 25),
    Sketcher.Constraint("Parallel", 9, 29),
    Sketcher.Constraint("Horizontal", 13, 2, 16, 1),
    Sketcher.Constraint("Horizontal", 8, 1, 21, 2),
    Sketcher.Constraint("Diameter", 32, Q("0.96 in")),
    Sketcher.Constraint("DistanceY", -1, 1, 33, 3, Q("1.75 in")),
    Sketcher.Constraint("Distance", 0, Q("0.1875 in")),
    Sketcher.Constraint("Distance", 7, Q("0.875 in")),
    Sketcher.Constraint("Radius", 3, 6.383143),
    Sketcher.Constraint("Radius", 4, 2.193386),
    Sketcher.Constraint("DistanceX", 6, 2, 3, 1, 14.374),
    Sketcher.Constraint("DistanceX", 4, 3, -1, 1, 12.86561),
    Sketcher.Constraint("DistanceY", 4, 3, -1, 1, 15.288171),
    Sketcher.Constraint("DistanceX", 2, 2, -1, 1, 15.88758),
    Sketcher.Constraint("DistanceX", 3, 1, -1, 1, 15.036339),
    Sketcher.Constraint("DistanceX", 4, 1, -1, 1, 12.484619),
    Sketcher.Constraint("DistanceY", 6, 2, -1, 1, 36.145531),
    Sketcher.Constraint("DistanceX", 1, 2, 5, 3, 23.109529),
    Sketcher.Constraint("DistanceY", 5, 1, 3, 1, 6.33003),
])
pocket7 = body.newObject("PartDesign::Pocket", "Pocket006")
pocket7.Profile = sketch9
pocket7.Type = "ThroughAll"
pocket7.Reversed = True
doc.recompute()

fillet = body.newObject("PartDesign::Fillet", "Fillet")
fillet.Base = (pocket7, edges_at(pocket7, [
    (-16.112, -21.304, 1.524),
    (-16.112, 21.304, 1.524),
    (16.112, 21.304, 1.524),
    (16.112, -21.304, 1.524),
]))
fillet.Radius = Q("0.1 in")

doc.recompute()
